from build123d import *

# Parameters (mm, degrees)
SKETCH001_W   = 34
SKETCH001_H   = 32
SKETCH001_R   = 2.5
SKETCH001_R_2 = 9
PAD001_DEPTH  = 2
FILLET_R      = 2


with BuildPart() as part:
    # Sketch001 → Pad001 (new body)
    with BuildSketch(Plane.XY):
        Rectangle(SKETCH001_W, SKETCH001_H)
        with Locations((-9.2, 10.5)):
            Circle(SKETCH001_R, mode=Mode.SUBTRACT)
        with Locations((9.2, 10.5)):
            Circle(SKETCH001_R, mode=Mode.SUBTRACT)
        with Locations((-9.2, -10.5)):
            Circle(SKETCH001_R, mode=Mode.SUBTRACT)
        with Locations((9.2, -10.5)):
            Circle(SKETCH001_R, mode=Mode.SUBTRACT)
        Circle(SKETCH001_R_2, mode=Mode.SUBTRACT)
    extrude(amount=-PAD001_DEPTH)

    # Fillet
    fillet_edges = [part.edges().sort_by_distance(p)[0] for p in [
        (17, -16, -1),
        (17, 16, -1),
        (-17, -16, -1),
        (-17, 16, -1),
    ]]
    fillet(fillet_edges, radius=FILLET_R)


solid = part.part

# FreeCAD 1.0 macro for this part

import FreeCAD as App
import Part
import Sketcher
Q = App.Units.Quantity


def edges_at(feature, points):
    """Names of the edges that pass closest to the given points."""
    edges = feature.Shape.Edges
    near = lambda p: min(range(len(edges)), key=lambda i: edges[i].distToShape(Part.Vertex(*p))[0])
    return sorted({f"Edge{near(p) + 1}" for p in points})

doc = App.newDocument("Part")
body = doc.addObject("PartDesign::Body", "Body")

# Sketch on XY plane
sketch1 = body.newObject("Sketcher::SketchObject", "Sketch")
sketch1.AttachmentSupport = (doc.getObject("XY_Plane"), [""])
sketch1.MapMode = "FlatFace"
sketch1.addGeometry(Part.LineSegment(App.Vector(-17, 16, 0), App.Vector(-17, -16, 0)), False)
sketch1.addGeometry(Part.LineSegment(App.Vector(-17, -16, 0), App.Vector(17, -16, 0)), False)
sketch1.addGeometry(Part.LineSegment(App.Vector(17, -16, 0), App.Vector(17, 16, 0)), False)
sketch1.addGeometry(Part.LineSegment(App.Vector(17, 16, 0), App.Vector(-17, 16, 0)), False)
sketch1.addGeometry(Part.Circle(App.Vector(-9.2, -10.5, 0), App.Vector(0, 0, 1), 2.5), False)
sketch1.addGeometry(Part.Circle(App.Vector(9.2, -10.5, 0), App.Vector(0, 0, 1), 2.5), False)
sketch1.addGeometry(Part.Circle(App.Vector(-9.2, 10.5, 0), App.Vector(0, 0, 1), 2.5), False)
sketch1.addGeometry(Part.Circle(App.Vector(0, 0, 0), App.Vector(0, 0, 1), 9), False)
sketch1.addGeometry(Part.Circle(App.Vector(9.2, 10.5, 0), App.Vector(0, 0, 1), 2.5), False)
sketch1.addConstraint(Sketcher.Constraint("Coincident", 0, 2, 1, 1))
sketch1.addConstraint(Sketcher.Constraint("Coincident", 1, 2, 2, 1))
sketch1.addConstraint(Sketcher.Constraint("Coincident", 2, 2, 3, 1))
sketch1.addConstraint(Sketcher.Constraint("Coincident", 3, 2, 0, 1))
sketch1.addConstraint(Sketcher.Constraint("Vertical", 0))
sketch1.addConstraint(Sketcher.Constraint("Horizontal", 1))
sketch1.addConstraint(Sketcher.Constraint("Vertical", 2))
sketch1.addConstraint(Sketcher.Constraint("Horizontal", 3))
sketch1.addConstraint(Sketcher.Constraint("Coincident", 7, 3, -1, 1))
sketch1.addConstraint(Sketcher.Constraint("Equal", 4, 5))
sketch1.addConstraint(Sketcher.Constraint("Equal", 5, 6))
sketch1.addConstraint(Sketcher.Constraint("Equal", 6, 8))
sketch1.addConstraint(Sketcher.Constraint("Symmetric", 5, 3, 6, 3, -1, 1))
sketch1.addConstraint(Sketcher.Constraint("Symmetric", 4, 3, 8, 3, -1, 1))
sketch1.addConstraint(Sketcher.Constraint("Symmetric", 0, 2, 2, 2, -1, 1))
sketch1.addConstraint(Sketcher.Constraint("Symmetric", 4, 3, 5, 3, -2))
sketch1.addConstraint(Sketcher.Constraint("Diameter", 4, Q("5 mm")))
sketch1.addConstraint(Sketcher.Constraint("Diameter", 7, Q("18 mm")))
sketch1.addConstraint(Sketcher.Constraint("DistanceX", 1, 1, 1, 2, Q("34 mm")))
sketch1.addConstraint(Sketcher.Constraint("DistanceY", 0, 2, 0, 1, Q("32 mm")))
sketch1.addConstraint(Sketcher.Constraint("DistanceY", 4, 3, 6, 3, Q("21 mm")))
sketch1.addConstraint(Sketcher.Constraint("DistanceX", 4, 3, -1, 1, Q("9.2 mm")))
pad1 = body.newObject("PartDesign::Pad", "Pad")
pad1.Profile = sketch1
pad1.Length = 2
pad1.Reversed = True
doc.recompute()

fillet = body.newObject("PartDesign::Fillet", "Fillet")
fillet.Base = (pad1, edges_at(pad1, [
    (17, -16, -1),
    (17, 16, -1),
    (-17, -16, -1),
    (-17, 16, -1),
]))
fillet.Radius = 2

doc.recompute()
